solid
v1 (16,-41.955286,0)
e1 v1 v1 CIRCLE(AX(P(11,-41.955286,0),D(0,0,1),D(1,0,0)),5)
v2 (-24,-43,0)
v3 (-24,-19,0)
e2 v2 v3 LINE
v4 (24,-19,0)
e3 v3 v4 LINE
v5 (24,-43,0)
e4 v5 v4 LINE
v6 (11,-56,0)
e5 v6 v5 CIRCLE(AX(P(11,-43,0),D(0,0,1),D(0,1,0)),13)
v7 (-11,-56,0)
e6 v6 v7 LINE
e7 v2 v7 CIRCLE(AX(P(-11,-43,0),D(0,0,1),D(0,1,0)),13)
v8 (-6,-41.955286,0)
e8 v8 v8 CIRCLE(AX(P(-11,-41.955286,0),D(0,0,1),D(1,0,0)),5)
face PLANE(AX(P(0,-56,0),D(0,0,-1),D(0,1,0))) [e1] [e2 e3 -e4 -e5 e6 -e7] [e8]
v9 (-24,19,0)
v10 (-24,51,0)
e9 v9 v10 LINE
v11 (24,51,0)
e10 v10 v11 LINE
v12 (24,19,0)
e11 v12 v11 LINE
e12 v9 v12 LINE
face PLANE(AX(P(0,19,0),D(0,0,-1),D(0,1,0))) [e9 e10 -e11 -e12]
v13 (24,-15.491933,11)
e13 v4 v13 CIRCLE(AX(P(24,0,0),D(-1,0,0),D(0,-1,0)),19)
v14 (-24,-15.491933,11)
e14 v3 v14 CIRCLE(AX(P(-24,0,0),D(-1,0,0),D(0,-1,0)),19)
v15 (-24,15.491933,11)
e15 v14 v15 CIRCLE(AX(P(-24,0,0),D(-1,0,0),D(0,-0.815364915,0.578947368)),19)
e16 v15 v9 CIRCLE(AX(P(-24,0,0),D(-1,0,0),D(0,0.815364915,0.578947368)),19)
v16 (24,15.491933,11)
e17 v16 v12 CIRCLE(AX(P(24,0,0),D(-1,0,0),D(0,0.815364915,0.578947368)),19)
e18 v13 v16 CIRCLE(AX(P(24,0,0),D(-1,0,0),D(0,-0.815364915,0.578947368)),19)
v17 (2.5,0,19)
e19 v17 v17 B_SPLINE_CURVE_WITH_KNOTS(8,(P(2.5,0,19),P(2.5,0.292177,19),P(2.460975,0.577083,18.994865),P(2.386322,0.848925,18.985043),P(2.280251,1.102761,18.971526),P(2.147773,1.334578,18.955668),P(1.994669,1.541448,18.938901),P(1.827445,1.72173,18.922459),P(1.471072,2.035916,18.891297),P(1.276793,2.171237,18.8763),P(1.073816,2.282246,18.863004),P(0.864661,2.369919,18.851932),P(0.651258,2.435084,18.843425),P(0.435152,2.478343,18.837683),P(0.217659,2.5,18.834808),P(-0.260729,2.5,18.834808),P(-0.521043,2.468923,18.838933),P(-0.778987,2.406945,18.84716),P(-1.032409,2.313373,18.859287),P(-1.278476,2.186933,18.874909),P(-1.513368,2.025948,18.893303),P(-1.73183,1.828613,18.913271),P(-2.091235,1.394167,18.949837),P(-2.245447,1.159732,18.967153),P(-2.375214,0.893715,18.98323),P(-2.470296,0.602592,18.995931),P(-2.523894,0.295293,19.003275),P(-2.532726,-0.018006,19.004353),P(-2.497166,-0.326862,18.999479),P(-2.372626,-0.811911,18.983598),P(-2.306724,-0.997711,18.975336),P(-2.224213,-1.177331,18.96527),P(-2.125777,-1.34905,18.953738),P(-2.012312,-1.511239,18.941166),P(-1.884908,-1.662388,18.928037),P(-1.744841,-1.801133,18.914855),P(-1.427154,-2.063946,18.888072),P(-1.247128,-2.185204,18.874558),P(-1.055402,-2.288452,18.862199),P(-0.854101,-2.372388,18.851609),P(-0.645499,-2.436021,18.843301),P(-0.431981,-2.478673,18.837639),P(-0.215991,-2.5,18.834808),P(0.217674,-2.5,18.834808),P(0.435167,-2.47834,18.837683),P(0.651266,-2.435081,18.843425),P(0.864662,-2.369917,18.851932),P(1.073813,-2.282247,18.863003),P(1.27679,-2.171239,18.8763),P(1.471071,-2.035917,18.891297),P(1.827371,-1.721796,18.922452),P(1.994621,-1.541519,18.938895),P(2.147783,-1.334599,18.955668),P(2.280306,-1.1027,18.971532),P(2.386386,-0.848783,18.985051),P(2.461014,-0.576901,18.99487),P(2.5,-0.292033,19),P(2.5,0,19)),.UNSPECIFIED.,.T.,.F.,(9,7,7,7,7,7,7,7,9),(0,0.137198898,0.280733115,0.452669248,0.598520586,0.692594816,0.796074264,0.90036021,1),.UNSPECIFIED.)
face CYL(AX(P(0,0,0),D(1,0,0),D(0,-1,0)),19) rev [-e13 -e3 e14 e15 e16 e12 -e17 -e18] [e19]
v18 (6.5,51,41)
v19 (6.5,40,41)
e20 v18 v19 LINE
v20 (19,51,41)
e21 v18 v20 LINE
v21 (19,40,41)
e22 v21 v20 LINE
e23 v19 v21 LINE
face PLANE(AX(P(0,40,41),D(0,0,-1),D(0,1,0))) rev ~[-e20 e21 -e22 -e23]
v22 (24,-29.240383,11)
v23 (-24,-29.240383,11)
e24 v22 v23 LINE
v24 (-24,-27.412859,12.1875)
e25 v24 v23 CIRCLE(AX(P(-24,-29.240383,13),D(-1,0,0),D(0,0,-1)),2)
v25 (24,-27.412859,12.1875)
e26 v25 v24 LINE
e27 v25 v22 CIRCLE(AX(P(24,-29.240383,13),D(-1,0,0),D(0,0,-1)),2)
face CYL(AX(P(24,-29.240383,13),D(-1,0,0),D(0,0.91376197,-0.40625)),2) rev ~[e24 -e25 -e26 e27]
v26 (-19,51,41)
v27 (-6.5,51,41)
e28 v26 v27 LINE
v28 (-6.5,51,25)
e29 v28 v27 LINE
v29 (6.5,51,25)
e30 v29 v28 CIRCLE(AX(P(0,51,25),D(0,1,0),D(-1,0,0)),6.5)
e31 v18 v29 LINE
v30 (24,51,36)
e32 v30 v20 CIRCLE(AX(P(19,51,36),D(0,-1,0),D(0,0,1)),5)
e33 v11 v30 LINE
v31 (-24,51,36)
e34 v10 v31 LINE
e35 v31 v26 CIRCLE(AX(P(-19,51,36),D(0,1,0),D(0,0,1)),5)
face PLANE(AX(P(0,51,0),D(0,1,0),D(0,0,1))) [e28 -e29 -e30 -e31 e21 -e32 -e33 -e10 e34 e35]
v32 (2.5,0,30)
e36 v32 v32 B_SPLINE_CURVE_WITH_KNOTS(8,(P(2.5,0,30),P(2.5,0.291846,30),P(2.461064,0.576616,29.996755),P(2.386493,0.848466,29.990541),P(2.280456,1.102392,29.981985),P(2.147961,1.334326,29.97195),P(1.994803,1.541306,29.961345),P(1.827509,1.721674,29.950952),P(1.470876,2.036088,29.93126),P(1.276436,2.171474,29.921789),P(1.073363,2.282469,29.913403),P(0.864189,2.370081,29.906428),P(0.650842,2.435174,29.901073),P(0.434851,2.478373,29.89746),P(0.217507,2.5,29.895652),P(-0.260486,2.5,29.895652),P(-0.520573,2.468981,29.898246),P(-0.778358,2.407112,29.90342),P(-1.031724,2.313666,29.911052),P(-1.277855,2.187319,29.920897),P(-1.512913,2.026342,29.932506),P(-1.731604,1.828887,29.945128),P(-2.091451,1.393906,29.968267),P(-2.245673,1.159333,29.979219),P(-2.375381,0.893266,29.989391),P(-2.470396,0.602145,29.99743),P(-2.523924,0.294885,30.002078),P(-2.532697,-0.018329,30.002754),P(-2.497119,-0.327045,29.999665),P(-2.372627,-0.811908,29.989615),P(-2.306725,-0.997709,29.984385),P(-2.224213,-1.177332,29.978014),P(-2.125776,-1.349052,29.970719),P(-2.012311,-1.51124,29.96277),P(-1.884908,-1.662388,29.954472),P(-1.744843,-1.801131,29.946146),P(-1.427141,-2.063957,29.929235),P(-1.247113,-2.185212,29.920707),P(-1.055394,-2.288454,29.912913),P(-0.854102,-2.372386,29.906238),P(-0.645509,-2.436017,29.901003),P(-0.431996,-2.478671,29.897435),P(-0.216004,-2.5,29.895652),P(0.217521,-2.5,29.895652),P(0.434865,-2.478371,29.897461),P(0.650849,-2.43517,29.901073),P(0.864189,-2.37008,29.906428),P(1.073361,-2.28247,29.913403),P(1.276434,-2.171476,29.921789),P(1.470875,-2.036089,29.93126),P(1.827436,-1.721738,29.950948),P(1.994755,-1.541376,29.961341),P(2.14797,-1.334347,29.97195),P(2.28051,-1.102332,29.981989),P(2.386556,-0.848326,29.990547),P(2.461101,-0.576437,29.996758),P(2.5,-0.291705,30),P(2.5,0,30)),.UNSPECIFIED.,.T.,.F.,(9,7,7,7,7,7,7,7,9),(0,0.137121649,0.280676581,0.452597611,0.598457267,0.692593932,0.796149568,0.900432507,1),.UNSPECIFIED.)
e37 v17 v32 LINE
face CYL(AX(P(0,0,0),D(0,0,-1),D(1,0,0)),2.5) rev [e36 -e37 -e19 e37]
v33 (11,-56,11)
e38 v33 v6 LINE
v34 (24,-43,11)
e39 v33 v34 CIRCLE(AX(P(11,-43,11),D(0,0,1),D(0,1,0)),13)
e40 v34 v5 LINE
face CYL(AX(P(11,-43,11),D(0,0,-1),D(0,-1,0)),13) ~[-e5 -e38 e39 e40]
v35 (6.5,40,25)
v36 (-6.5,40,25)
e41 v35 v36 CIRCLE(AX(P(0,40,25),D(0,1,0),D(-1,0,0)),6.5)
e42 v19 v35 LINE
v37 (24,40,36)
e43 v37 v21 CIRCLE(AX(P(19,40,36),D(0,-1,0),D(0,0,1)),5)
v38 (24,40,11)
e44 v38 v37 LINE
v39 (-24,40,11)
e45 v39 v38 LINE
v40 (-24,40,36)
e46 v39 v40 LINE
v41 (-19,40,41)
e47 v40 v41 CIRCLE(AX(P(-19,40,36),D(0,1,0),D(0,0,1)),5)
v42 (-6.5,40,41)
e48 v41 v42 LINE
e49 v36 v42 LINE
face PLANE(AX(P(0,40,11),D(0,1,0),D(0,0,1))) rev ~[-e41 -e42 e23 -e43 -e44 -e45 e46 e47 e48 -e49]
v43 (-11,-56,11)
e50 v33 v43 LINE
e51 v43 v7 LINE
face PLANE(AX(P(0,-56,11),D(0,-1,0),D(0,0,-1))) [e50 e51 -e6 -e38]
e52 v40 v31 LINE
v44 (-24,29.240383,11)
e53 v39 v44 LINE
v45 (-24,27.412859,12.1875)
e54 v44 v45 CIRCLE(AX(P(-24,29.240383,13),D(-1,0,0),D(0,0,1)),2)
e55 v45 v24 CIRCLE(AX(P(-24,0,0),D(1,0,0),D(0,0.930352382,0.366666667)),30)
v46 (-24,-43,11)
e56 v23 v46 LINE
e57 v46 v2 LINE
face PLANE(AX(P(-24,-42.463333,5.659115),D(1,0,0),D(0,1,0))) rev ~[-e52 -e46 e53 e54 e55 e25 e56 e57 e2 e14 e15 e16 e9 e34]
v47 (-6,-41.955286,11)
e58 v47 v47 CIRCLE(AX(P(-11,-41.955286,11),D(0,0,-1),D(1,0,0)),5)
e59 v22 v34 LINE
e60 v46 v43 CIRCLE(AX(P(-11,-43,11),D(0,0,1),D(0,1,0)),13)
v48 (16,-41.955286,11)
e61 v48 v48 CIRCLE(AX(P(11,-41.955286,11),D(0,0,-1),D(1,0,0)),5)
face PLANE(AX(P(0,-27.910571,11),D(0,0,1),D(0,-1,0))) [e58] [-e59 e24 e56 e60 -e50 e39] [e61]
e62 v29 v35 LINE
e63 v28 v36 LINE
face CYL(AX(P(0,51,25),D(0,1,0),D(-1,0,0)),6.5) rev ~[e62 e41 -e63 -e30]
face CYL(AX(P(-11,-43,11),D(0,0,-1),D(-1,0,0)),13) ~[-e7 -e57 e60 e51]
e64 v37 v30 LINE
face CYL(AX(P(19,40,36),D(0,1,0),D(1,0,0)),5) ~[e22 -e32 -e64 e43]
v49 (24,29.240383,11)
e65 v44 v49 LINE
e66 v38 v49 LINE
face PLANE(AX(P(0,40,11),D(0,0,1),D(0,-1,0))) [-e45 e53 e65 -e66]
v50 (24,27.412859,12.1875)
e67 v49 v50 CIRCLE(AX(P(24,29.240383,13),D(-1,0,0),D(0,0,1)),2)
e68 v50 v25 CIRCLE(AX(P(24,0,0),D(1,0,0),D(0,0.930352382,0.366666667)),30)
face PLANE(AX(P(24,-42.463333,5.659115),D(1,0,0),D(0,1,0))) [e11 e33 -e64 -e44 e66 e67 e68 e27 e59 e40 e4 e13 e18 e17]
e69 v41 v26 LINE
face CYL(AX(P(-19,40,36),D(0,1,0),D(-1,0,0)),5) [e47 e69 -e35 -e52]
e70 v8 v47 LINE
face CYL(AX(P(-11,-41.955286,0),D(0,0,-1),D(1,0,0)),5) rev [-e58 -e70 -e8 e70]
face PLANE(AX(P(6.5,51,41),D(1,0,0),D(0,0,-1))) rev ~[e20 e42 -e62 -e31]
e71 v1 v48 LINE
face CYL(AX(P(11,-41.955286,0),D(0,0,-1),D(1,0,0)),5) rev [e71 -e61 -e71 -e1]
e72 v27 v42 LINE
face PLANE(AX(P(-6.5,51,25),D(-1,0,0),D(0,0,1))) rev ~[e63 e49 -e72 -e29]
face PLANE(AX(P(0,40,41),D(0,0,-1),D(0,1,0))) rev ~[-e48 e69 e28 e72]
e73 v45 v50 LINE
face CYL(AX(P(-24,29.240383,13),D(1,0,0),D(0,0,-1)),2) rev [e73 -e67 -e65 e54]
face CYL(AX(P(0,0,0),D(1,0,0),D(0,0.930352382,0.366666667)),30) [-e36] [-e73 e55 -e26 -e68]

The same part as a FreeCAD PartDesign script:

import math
import FreeCAD as App
import Part
import Sketcher
from FreeCAD import Vector
Q = App.Units.Quantity


def edges_at(feature, points):
    """Names of the edges that pass closest to the given points."""
    edges = feature.Shape.Edges
    near = lambda p: min(range(len(edges)), key=lambda i: edges[i].distToShape(Part.Vertex(*p))[0])
    return sorted({f"Edge{near(p) + 1}" for p in points})

doc = App.newDocument("Part")
body = doc.addObject("PartDesign::Body", "Body")

# Sketch on YZ plane
sketch1 = body.newObject("Sketcher::SketchObject", "Sketch")
sketch1.AttachmentSupport = (doc.getObject("YZ_Plane"), [""])
sketch1.MapMode = "FlatFace"
sketch1.addGeometry(Part.LineSegment(Vector(-56, 0, 0), Vector(-19, 0, 0)), False)
sketch1.addGeometry(Part.ArcOfCircle(Part.Circle(Vector(0, 0, 0), Vector(0, 0, 1), 19), math.radians(144.62346), math.radians(180)), False)
sketch1.addGeometry(Part.ArcOfCircle(Part.Circle(Vector(0, 0, 0), Vector(0, 0, 1), 19), math.radians(35.37654), math.radians(144.62346)), False)
sketch1.addGeometry(Part.ArcOfCircle(Part.Circle(Vector(0, 0, 0), Vector(0, 0, 1), 19), math.radians(0), math.radians(35.37654)), False)
sketch1.addGeometry(Part.LineSegment(Vector(19, 0, 0), Vector(51, 0, 0)), False)
sketch1.addGeometry(Part.LineSegment(Vector(51, 0, 0), Vector(51, 41, 0)), False)
sketch1.addGeometry(Part.LineSegment(Vector(51, 41, 0), Vector(40, 41, 0)), False)
sketch1.addGeometry(Part.LineSegment(Vector(40, 41, 0), Vector(40, 11, 0)), False)
sketch1.addGeometry(Part.LineSegment(Vector(40, 11, 0), Vector(27.910571, 11, 0)), False)
sketch1.addGeometry(Part.ArcOfCircle(Part.Circle(Vector(0, 0, 0), Vector(0, 0, 1), 30), math.radians(21.510188), math.radians(158.489812)), False)
sketch1.addGeometry(Part.LineSegment(Vector(-27.910571, 11, 0), Vector(-56, 11, 0)), False)
sketch1.addGeometry(Part.LineSegment(Vector(-56, 11, 0), Vector(-56, 0, 0)), False)
sketch1.addConstraint(Sketcher.Constraint("Coincident", 0, 2, 1, 2))
sketch1.addConstraint(Sketcher.Constraint("Tangent", 1, 1, 2, 2))
sketch1.addConstraint(Sketcher.Constraint("Tangent", 2, 1, 3, 2))
sketch1.addConstraint(Sketcher.Constraint("Coincident", 3, 1, 4, 1))
sketch1.addConstraint(Sketcher.Constraint("Coincident", 4, 2, 5, 1))
sketch1.addConstraint(Sketcher.Constraint("Coincident", 5, 2, 6, 1))
sketch1.addConstraint(Sketcher.Constraint("Coincident", 6, 2, 7, 1))
sketch1.addConstraint(Sketcher.Constraint("Coincident", 7, 2, 8, 1))
sketch1.addConstraint(Sketcher.Constraint("Coincident", 8, 2, 9, 1))
sketch1.addConstraint(Sketcher.Constraint("Coincident", 9, 2, 10, 1))
sketch1.addConstraint(Sketcher.Constraint("Coincident", 10, 2, 11, 1))
sketch1.addConstraint(Sketcher.Constraint("Coincident", 11, 2, 0, 1))
sketch1.addConstraint(Sketcher.Constraint("Horizontal", 0))
sketch1.addConstraint(Sketcher.Constraint("Horizontal", 4))
sketch1.addConstraint(Sketcher.Constraint("Vertical", 5))
sketch1.addConstraint(Sketcher.Constraint("Horizontal", 6))
sketch1.addConstraint(Sketcher.Constraint("Vertical", 7))
sketch1.addConstraint(Sketcher.Constraint("Horizontal", 8))
sketch1.addConstraint(Sketcher.Constraint("Horizontal", 10))
sketch1.addConstraint(Sketcher.Constraint("Vertical", 11))
sketch1.addConstraint(Sketcher.Constraint("Coincident", 1, 3, -1, 1))
sketch1.addConstraint(Sketcher.Constraint("Coincident", 3, 3, -1, 1))
sketch1.addConstraint(Sketcher.Constraint("Coincident", 9, 3, -1, 1))
sketch1.addConstraint(Sketcher.Constraint("PointOnObject", 0, 2, -1))
sketch1.addConstraint(Sketcher.Constraint("PointOnObject", 3, 1, -1))
sketch1.addConstraint(Sketcher.Constraint("Horizontal", 1, 1, 2, 1))
sketch1.addConstraint(Sketcher.Constraint("Horizontal", 2, 1, 7, 2))
sketch1.addConstraint(Sketcher.Constraint("Horizontal", 8, 2, 9, 2))
sketch1.addConstraint(Sketcher.Constraint("Equal", 6, 11))
sketch1.addConstraint(Sketcher.Constraint("Radius", 1, Q("19 mm")))
sketch1.addConstraint(Sketcher.Constraint("Radius", 9, Q("30 mm")))
sketch1.addConstraint(Sketcher.Constraint("DistanceX", 0, 1, 0, 2, Q("37 mm")))
sketch1.addConstraint(Sketcher.Constraint("DistanceX", 4, 1, 4, 2, Q("32 mm")))
sketch1.addConstraint(Sketcher.Constraint("DistanceX", 6, 2, 6, 1, Q("11 mm")))
sketch1.addConstraint(Sketcher.Constraint("DistanceY", 5, 1, 5, 2, Q("41 mm")))
pad1 = body.newObject("PartDesign::Pad", "Pad")
pad1.Profile = sketch1
pad1.Length = 48
pad1.Midplane = True

# Sketch on XZ plane
sketch2 = body.newObject("Sketcher::SketchObject", "Sketch001")
sketch2.AttachmentSupport = (doc.getObject("XZ_Plane"), [""])
sketch2.MapMode = "FlatFace"
sketch2.AttachmentOffset = App.Placement(Vector(0, 0, -51), App.Rotation())
sketch2.addGeometry(Part.ArcOfCircle(Part.Circle(Vector(0, 25, 0), Vector(0, 0, 1), 6.5), math.radians(180), math.radians(360)), False)
sketch2.addGeometry(Part.LineSegment(Vector(-6.5, 25, 0), Vector(-6.5, 41, 0)), False)
sketch2.addGeometry(Part.LineSegment(Vector(-6.5, 41, 0), Vector(6.5, 41, 0)), False)
sketch2.addGeometry(Part.LineSegment(Vector(6.5, 41, 0), Vector(6.5, 25, 0)), False)
sketch2.addConstraint(Sketcher.Constraint("Tangent", 0, 1, 1, 1))
sketch2.addConstraint(Sketcher.Constraint("Coincident", 1, 2, 2, 1))
sketch2.addConstraint(Sketcher.Constraint("Coincident", 2, 2, 3, 1))
sketch2.addConstraint(Sketcher.Constraint("Tangent", 3, 2, 0, 2))
sketch2.addConstraint(Sketcher.Constraint("Vertical", 1))
sketch2.addConstraint(Sketcher.Constraint("Horizontal", 2))
sketch2.addConstraint(Sketcher.Constraint("Vertical", 3))
sketch2.addConstraint(Sketcher.Constraint("PointOnObject", 0, 3, -2))
sketch2.addConstraint(Sketcher.Constraint("Radius", 0, Q("6.5 mm")))
sketch2.addConstraint(Sketcher.Constraint("DistanceY", 1, 1, 1, 2, Q("16 mm")))
sketch2.addConstraint(Sketcher.Constraint("DistanceY", -1, 1, 0, 3, Q("25 mm")))
pocket1 = body.newObject("PartDesign::Pocket", "Pocket")
pocket1.Profile = sketch2
pocket1.Length = 11
pocket1.Reversed = True

# Sketch on XY plane
sketch3 = body.newObject("Sketcher::SketchObject", "Sketch002")
sketch3.AttachmentSupport = (doc.getObject("XY_Plane"), [""])
sketch3.MapMode = "FlatFace"
sketch3.addGeometry(Part.Circle(Vector(0, 0, 0), Vector(0, 0, 1), 2.5), False)
sketch3.addGeometry(Part.Circle(Vector(-11, -41.955286, 0), Vector(0, 0, 1), 5), False)
sketch3.addGeometry(Part.Circle(Vector(11, -41.955286, 0), Vector(0, 0, 1), 5), False)
sketch3.addConstraint(Sketcher.Constraint("Coincident", 0, 3, -1, 1))
sketch3.addConstraint(Sketcher.Constraint("Equal", 1, 2))
sketch3.addConstraint(Sketcher.Constraint("Symmetric", 1, 3, 2, 3, -2))
sketch3.addConstraint(Sketcher.Constraint("Diameter", 0, Q("5 mm")))
sketch3.addConstraint(Sketcher.Constraint("Diameter", 1, Q("10 mm")))
sketch3.addConstraint(Sketcher.Constraint("DistanceX", 1, 3, -1, 1, Q("11 mm")))
sketch3.addConstraint(Sketcher.Constraint("DistanceY", 1, 3, -1, 1, Q("41.955286 mm")))
pocket2 = body.newObject("PartDesign::Pocket", "Pocket001")
pocket2.Profile = sketch3
pocket2.Type = "ThroughAll"
pocket2.Reversed = True
doc.recompute()

fillet = body.newObject("PartDesign::Fillet", "Fillet")
fillet.Base = (pocket2, edges_at(pocket2, [(24, -56, 5.5), (-24, -56, 5.5)]))
fillet.Radius = 13
doc.recompute()

fillet2 = body.newObject("PartDesign::Fillet", "Fillet001")
fillet2.Base = (fillet, edges_at(fillet, [(24, 45.5, 41), (-24, 45.5, 41)]))
fillet2.Radius = 5
doc.recompute()

fillet3 = body.newObject("PartDesign::Fillet", "Fillet002")
fillet3.Base = (fillet2, edges_at(fillet2, [(0, -27.911, 11), (0, 27.911, 11)]))
fillet3.Radius = 2

doc.recompute()
